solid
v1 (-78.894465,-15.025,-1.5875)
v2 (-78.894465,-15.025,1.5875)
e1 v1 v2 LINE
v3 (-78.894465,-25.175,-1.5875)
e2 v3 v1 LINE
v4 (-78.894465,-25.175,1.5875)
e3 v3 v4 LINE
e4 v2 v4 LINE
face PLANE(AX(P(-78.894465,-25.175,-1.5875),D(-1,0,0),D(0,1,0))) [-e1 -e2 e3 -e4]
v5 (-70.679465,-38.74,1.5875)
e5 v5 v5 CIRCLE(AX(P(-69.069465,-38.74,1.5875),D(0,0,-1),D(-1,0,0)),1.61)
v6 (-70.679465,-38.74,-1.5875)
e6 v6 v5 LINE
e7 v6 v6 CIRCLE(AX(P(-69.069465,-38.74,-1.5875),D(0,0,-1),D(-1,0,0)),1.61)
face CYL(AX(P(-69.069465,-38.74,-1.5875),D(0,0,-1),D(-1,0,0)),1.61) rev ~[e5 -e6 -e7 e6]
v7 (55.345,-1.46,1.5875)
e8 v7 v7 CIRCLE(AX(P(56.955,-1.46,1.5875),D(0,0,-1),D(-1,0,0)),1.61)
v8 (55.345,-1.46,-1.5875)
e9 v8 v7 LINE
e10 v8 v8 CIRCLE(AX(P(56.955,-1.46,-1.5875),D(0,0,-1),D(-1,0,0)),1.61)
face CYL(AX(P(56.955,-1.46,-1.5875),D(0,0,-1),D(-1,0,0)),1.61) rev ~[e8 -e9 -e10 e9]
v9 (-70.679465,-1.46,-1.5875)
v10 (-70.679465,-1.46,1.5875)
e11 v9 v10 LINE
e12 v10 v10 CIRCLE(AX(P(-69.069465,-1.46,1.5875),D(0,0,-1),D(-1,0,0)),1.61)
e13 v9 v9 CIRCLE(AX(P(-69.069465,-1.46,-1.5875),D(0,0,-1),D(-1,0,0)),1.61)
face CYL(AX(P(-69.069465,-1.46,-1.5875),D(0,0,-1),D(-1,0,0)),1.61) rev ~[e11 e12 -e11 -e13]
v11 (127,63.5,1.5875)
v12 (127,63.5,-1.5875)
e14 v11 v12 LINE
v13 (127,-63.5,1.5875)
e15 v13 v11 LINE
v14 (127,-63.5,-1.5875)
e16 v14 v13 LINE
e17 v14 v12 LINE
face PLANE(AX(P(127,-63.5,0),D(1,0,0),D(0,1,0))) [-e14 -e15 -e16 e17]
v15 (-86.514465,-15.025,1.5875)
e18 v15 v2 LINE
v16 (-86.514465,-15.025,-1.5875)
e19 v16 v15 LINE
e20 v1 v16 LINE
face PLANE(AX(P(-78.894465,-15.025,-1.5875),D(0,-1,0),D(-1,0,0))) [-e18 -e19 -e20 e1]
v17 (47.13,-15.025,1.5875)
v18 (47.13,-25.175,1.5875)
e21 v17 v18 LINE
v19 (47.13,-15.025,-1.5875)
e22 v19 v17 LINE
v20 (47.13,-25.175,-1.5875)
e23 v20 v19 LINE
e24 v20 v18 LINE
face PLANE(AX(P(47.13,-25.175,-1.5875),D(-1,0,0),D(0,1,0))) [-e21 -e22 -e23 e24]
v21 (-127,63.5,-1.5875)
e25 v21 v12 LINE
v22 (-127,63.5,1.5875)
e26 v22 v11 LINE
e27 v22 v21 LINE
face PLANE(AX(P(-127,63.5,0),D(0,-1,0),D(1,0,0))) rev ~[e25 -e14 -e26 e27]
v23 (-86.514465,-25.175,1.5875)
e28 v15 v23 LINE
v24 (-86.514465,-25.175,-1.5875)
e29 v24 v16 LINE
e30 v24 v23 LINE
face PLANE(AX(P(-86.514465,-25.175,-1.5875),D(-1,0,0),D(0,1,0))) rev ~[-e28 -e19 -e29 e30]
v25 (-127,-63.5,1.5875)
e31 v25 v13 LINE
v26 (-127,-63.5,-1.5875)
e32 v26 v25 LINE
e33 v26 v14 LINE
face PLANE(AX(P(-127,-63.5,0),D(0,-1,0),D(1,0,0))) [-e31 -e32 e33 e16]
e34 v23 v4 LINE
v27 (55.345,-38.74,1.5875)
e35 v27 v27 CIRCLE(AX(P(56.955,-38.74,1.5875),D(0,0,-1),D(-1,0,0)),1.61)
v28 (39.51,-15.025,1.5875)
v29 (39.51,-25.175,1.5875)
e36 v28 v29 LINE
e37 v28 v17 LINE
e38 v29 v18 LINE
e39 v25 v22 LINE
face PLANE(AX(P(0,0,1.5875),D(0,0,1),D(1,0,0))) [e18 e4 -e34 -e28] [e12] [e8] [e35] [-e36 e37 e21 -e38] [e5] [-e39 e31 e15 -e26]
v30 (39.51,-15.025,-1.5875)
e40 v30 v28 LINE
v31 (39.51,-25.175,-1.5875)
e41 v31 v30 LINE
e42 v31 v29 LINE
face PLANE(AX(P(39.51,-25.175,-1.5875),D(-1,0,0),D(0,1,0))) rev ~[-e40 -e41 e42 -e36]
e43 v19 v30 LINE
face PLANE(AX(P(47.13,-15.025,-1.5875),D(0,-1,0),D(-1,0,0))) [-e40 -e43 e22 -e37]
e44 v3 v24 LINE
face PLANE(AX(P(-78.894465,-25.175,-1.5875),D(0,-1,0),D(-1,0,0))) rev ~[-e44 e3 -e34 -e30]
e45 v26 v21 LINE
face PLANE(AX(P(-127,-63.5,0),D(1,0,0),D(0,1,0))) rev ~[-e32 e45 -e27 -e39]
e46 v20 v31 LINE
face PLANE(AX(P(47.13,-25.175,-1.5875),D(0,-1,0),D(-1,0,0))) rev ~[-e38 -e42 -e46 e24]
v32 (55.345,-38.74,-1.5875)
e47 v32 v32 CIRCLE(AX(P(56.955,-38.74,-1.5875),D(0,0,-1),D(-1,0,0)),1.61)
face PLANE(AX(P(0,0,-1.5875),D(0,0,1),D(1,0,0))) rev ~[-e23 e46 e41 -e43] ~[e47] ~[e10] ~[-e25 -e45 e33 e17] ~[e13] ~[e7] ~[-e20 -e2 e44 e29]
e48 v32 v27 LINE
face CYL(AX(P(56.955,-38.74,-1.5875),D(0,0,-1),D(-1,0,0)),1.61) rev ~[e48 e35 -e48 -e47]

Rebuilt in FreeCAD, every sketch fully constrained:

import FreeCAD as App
import Part
import Sketcher

V = App.Vector
Q = App.Units.Quantity

doc = App.newDocument("Part")
body = doc.addObject("PartDesign::Body", "Body")

# Sketch on XY plane
sketch1 = doc.addObject("Sketcher::SketchObject", "Sketch")
body.addObject(sketch1)
sketch1.AttachmentSupport = (doc.XY_Plane, [""])
sketch1.MapMode = "FlatFace"
sketch1.addGeometry([
    Part.LineSegment(V(-127, 63.5, 0), V(-127, -63.5, 0)),
    Part.LineSegment(V(-127, -63.5, 0), V(127, -63.5, 0)),
    Part.LineSegment(V(127, -63.5, 0), V(127, 63.5, 0)),
    Part.LineSegment(V(127, 63.5, 0), V(-127, 63.5, 0)),
], False)
sketch1.addConstraint([
    Sketcher.Constraint("Coincident", 0, 2, 1, 1),
    Sketcher.Constraint("Coincident", 1, 2, 2, 1),
    Sketcher.Constraint("Coincident", 2, 2, 3, 1),
    Sketcher.Constraint("Coincident", 3, 2, 0, 1),
    Sketcher.Constraint("Vertical", 0),
    Sketcher.Constraint("Horizontal", 1),
    Sketcher.Constraint("Vertical", 2),
    Sketcher.Constraint("Horizontal", 3),
    Sketcher.Constraint("Symmetric", 0, 2, 2, 2, -1, 1),
    Sketcher.Constraint("DistanceX", 1, 1, 1, 2, Q("10 in")),
    Sketcher.Constraint("DistanceY", 0, 2, 0, 1, Q("5 in")),
])
pad1 = doc.addObject("PartDesign::Pad", "Pad")
body.addObject(pad1)
pad1.Profile = sketch1
pad1.Length = Q("0.125 in")
pad1.Midplane = True

# Sketch on XY plane
sketch2 = doc.addObject("Sketcher::SketchObject", "Sketch001")
body.addObject(sketch2)
sketch2.AttachmentSupport = (doc.XY_Plane, [""])
sketch2.MapMode = "FlatFace"
sketch2.AttachmentOffset = App.Placement(V(0, 0, -0.0625 * 25.4), App.Rotation())
sketch2.addGeometry([
    Part.Circle(V(56.955, -1.46, 0), V(0, 0, 1), 1.61),  # 0
    Part.Circle(V(56.955, -38.74, 0), V(0, 0, 1), 1.61),  # 1
    Part.Circle(V(-69.069465, -38.74, 0), V(0, 0, 1), 1.61),  # 2
    Part.Circle(V(-69.069465, -1.46, 0), V(0, 0, 1), 1.61),  # 3
    Part.LineSegment(V(47.13, -15.025, 0), V(47.13, -25.175, 0)),  # 4
    Part.LineSegment(V(47.13, -25.175, 0), V(39.51, -25.175, 0)),  # 5
    Part.LineSegment(V(39.51, -25.175, 0), V(39.51, -15.025, 0)),  # 6
    Part.LineSegment(V(39.51, -15.025, 0), V(47.13, -15.025, 0)),  # 7
    Part.LineSegment(V(-78.894465, -15.025, 0), V(-78.894465, -25.175, 0)),  # 8
    Part.LineSegment(V(-78.894465, -25.175, 0), V(-86.514465, -25.175, 0)),  # 9
    Part.LineSegment(V(-86.514465, -25.175, 0), V(-86.514465, -15.025, 0)),  # 10
    Part.LineSegment(V(-86.514465, -15.025, 0), V(-78.894465, -15.025, 0)),  # 11
], False)
sketch2.addConstraint([
    Sketcher.Constraint("Coincident", 4, 2, 5, 1),
    Sketcher.Constraint("Coincident", 5, 2, 6, 1),
    Sketcher.Constraint("Coincident", 6, 2, 7, 1),
    Sketcher.Constraint("Coincident", 7, 2, 4, 1),
    Sketcher.Constraint("Coincident", 8, 2, 9, 1),
    Sketcher.Constraint("Coincident", 9, 2, 10, 1),
    Sketcher.Constraint("Coincident", 10, 2, 11, 1),
    Sketcher.Constraint("Coincident", 11, 2, 8, 1),
    Sketcher.Constraint("Vertical", 4),
    Sketcher.Constraint("Horizontal", 5),
    Sketcher.Constraint("Vertical", 6),
    Sketcher.Constraint("Horizontal", 7),
    Sketcher.Constraint("Vertical", 8),
    Sketcher.Constraint("Horizontal", 9),
    Sketcher.Constraint("Vertical", 10),
    Sketcher.Constraint("Horizontal", 11),
    Sketcher.Constraint("Equal", 0, 1),
    Sketcher.Constraint("Equal", 1, 2),
    Sketcher.Constraint("Equal", 2, 3),
    Sketcher.Constraint("Horizontal", 1, 3, 2, 3),
    Sketcher.Constraint("Horizontal", 0, 3, 3, 3),
    Sketcher.Constraint("Horizontal", 5, 2, 8, 2),
    Sketcher.Constraint("Horizontal", 7, 2, 10, 2),
    Sketcher.Constraint("Vertical", 0, 3, 1, 3),
    Sketcher.Constraint("Vertical", 2, 3, 3, 3),
    Sketcher.Constraint("Equal", 7, 9),
    Sketcher.Constraint("DistanceX", 5, 2, 5, 1, Q("0.3 in")),
    Sketcher.Constraint("Diameter", 0, 3.22),
    Sketcher.Constraint("DistanceY", 4, 2, 4, 1, 10.15),
    Sketcher.Constraint("DistanceX", -1, 1, 0, 3, 56.955),
    Sketcher.Constraint("DistanceY", 0, 3, -1, 1, 1.46),
    Sketcher.Constraint("DistanceY", 1, 3, -1, 1, 38.74),
    Sketcher.Constraint("DistanceX", -1, 1, 4, 2, 47.13),
    Sketcher.Constraint("DistanceY", 4, 2, -1, 1, 25.175),
    Sketcher.Constraint("DistanceX", 8, 2, 2, 3, 9.825),
    Sketcher.Constraint("DistanceX", 2, 3, -1, 1, 69.069465),
])
pocket1 = doc.addObject("PartDesign::Pocket", "Pocket")
body.addObject(pocket1)
pocket1.Profile = sketch2
pocket1.Length = Q("0.2 in")
pocket1.Reversed = True

doc.recompute()
